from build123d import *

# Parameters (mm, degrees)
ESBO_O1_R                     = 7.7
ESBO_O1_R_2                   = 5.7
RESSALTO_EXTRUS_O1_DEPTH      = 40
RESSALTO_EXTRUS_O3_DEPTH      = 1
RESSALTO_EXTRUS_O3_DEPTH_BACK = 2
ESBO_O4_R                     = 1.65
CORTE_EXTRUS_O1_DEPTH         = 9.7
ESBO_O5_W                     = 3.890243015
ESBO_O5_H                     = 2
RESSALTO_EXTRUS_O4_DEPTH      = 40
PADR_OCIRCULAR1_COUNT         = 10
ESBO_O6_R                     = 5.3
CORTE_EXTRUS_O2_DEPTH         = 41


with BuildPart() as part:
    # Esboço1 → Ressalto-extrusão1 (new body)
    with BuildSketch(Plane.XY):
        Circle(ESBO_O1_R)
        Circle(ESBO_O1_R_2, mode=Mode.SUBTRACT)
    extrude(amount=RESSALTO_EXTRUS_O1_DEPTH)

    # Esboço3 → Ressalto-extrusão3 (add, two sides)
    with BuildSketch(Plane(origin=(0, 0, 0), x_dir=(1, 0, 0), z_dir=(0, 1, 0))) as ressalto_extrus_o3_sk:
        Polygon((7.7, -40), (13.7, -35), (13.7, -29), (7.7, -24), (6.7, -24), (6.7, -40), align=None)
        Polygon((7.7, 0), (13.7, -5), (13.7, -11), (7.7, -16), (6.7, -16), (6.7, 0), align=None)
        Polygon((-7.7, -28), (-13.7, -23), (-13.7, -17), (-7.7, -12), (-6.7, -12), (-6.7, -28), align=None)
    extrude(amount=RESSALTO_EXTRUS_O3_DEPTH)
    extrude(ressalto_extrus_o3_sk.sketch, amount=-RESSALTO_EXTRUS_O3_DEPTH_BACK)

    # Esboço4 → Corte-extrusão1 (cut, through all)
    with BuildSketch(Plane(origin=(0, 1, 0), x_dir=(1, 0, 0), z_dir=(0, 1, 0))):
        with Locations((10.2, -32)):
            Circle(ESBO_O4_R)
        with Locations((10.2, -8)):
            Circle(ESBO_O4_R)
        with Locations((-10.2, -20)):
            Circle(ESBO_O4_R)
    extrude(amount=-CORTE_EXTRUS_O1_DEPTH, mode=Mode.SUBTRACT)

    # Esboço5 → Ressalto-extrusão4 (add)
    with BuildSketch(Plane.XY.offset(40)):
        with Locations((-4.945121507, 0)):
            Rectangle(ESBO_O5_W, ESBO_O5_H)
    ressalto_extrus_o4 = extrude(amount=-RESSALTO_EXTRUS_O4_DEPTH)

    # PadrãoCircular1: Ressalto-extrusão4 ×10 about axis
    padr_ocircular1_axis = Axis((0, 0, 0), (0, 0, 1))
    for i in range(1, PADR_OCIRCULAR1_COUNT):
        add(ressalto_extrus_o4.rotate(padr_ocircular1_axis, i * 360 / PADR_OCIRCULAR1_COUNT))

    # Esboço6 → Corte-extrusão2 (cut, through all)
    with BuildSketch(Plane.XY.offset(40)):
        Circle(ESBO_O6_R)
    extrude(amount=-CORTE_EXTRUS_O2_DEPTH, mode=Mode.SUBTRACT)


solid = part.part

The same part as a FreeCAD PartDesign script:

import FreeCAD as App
import Part
import Sketcher

V = App.Vector

doc = App.newDocument("Part")
body = doc.addObject("PartDesign::Body", "Body")

# Sketch on XY plane
sketch1 = body.newObject("Sketcher::SketchObject", "Sketch")
sketch1.AttachmentSupport = (doc.getObject("XY_Plane"), [""])
sketch1.MapMode = "FlatFace"
sketch1.addGeometry([
    Part.Circle(V(0, 0, 0), V(0, 0, 1), 8),
    Part.Circle(V(0, 0, 0), V(0, 0, 1), 6),
], False)
sketch1.addConstraint([
    Sketcher.Constraint("Coincident", 0, 3, -1, 1),
    Sketcher.Constraint("Coincident", 1, 3, -1, 1),
    Sketcher.Constraint("Diameter", 0, 15.4),
    Sketcher.Constraint("Diameter", 1, 11.4),
])
pad1 = body.newObject("PartDesign::Pad", "Pad")
pad1.Profile = sketch1
pad1.Length = 40

# Sketch on XZ plane
sketch2 = body.newObject("Sketcher::SketchObject", "Sketch001")
sketch2.AttachmentSupport = (doc.getObject("XZ_Plane"), [""])
sketch2.MapMode = "FlatFace"
sketch2.addGeometry([
    Part.LineSegment(V(7.7, 40, 0), V(13.7, 35, 0)),  # 0
    Part.LineSegment(V(13.7, 35, 0), V(13.7, 29, 0)),  # 1
    Part.LineSegment(V(13.7, 29, 0), V(7.7, 24, 0)),  # 2
    Part.LineSegment(V(7.7, 24, 0), V(6.7, 24, 0)),  # 3
    Part.LineSegment(V(6.7, 24, 0), V(6.7, 40, 0)),  # 4
    Part.LineSegment(V(6.7, 40, 0), V(7.7, 40, 0)),  # 5
    Part.LineSegment(V(13.7, 5, 0), V(7.7, 0, 0)),  # 6
    Part.LineSegment(V(7.7, 0, 0), V(6.7, 0, 0)),  # 7
    Part.LineSegment(V(6.7, 0, 0), V(6.7, 16, 0)),  # 8
    Part.LineSegment(V(6.7, 16, 0), V(7.7, 16, 0)),  # 9
    Part.LineSegment(V(7.7, 16, 0), V(13.7, 11, 0)),  # 10
    Part.LineSegment(V(13.7, 11, 0), V(13.7, 5, 0)),  # 11
    Part.LineSegment(V(-13.7, 23, 0), V(-7.7, 28, 0)),  # 12
    Part.LineSegment(V(-7.7, 28, 0), V(-6.7, 28, 0)),  # 13
    Part.LineSegment(V(-6.7, 28, 0), V(-6.7, 12, 0)),  # 14
    Part.LineSegment(V(-6.7, 12, 0), V(-7.7, 12, 0)),  # 15
    Part.LineSegment(V(-7.7, 12, 0), V(-13.7, 17, 0)),  # 16
    Part.LineSegment(V(-13.7, 17, 0), V(-13.7, 23, 0)),  # 17
], False)
sketch2.addConstraint([
    Sketcher.Constraint("Coincident", 0, 2, 1, 1),
    Sketcher.Constraint("Coincident", 1, 2, 2, 1),
    Sketcher.Constraint("Coincident", 2, 2, 3, 1),
    Sketcher.Constraint("Coincident", 3, 2, 4, 1),
    Sketcher.Constraint("Coincident", 4, 2, 5, 1),
    Sketcher.Constraint("Coincident", 5, 2, 0, 1),
    Sketcher.Constraint("Coincident", 6, 2, 7, 1),
    Sketcher.Constraint("Coincident", 7, 2, 8, 1),
    Sketcher.Constraint("Coincident", 8, 2, 9, 1),
    Sketcher.Constraint("Coincident", 9, 2, 10, 1),
    Sketcher.Constraint("Coincident", 10, 2, 11, 1),
    Sketcher.Constraint("Coincident", 11, 2, 6, 1),
    Sketcher.Constraint("Coincident", 12, 2, 13, 1),
    Sketcher.Constraint("Coincident", 13, 2, 14, 1),
    Sketcher.Constraint("Coincident", 14, 2, 15, 1),
    Sketcher.Constraint("Coincident", 15, 2, 16, 1),
    Sketcher.Constraint("Coincident", 16, 2, 17, 1),
    Sketcher.Constraint("Coincident", 17, 2, 12, 1),
    Sketcher.Constraint("Vertical", 1),
    Sketcher.Constraint("Horizontal", 3),
    Sketcher.Constraint("Vertical", 4),
    Sketcher.Constraint("Horizontal", 5),
    Sketcher.Constraint("Horizontal", 7),
    Sketcher.Constraint("Vertical", 8),
    Sketcher.Constraint("Horizontal", 9),
    Sketcher.Constraint("Vertical", 11),
    Sketcher.Constraint("Horizontal", 13),
    Sketcher.Constraint("Vertical", 14),
    Sketcher.Constraint("Horizontal", 15),
    Sketcher.Constraint("Vertical", 17),
    Sketcher.Constraint("PointOnObject", 6, 2, -1),
    Sketcher.Constraint("Parallel", 2, 6),
    Sketcher.Constraint("Parallel", 0, 10),
    Sketcher.Constraint("Parallel", 6, 12),
    Sketcher.Constraint("Parallel", 10, 16),
    Sketcher.Constraint("Vertical", 2, 2, 5, 2),
    Sketcher.Constraint("Vertical", 5, 2, 6, 2),
    Sketcher.Constraint("Vertical", 4, 2, 7, 2),
    Sketcher.Constraint("Vertical", 6, 2, 9, 2),
    Sketcher.Constraint("Vertical", 1, 2, 10, 2),
    Sketcher.Constraint("Vertical", 12, 2, 15, 2),
    Sketcher.Constraint("Equal", 9, 13),
    Sketcher.Constraint("Equal", 4, 8),
    Sketcher.Constraint("Equal", 8, 14),
    Sketcher.Constraint("Equal", 11, 17),
    Sketcher.Constraint("Equal", 0, 2),
    Sketcher.Constraint("DistanceX", 3, 2, 3, 1, 1.0),
    Sketcher.Constraint("DistanceY", 1, 2, 1, 1, 6.0),
    Sketcher.Constraint("DistanceY", 4, 1, 4, 2, 16.0),
    Sketcher.Constraint("DistanceY", -1, 1, 0, 2, 35.0),
    Sketcher.Constraint("DistanceY", -1, 1, 12, 2, 28.0),
    Sketcher.Constraint("DistanceX", 2, 2, 1, 2, 6.0),
    Sketcher.Constraint("DistanceX", -1, 1, 0, 2, 13.7),
    Sketcher.Constraint("DistanceX", 12, 2, -1, 1, 7.7),
])
pad2 = body.newObject("PartDesign::Pad", "Pad001")
pad2.Profile = sketch2
pad2.Type = "TwoLengths"
pad2.Length = 1
pad2.Length2 = 2
pad2.Reversed = True

# Sketch on XZ plane
sketch3 = body.newObject("Sketcher::SketchObject", "Sketch002")
sketch3.AttachmentSupport = (doc.getObject("XZ_Plane"), [""])
sketch3.MapMode = "FlatFace"
sketch3.AttachmentOffset = App.Placement(V(0, 0, -1), App.Rotation())
sketch3.addGeometry([
    Part.Circle(V(10.2, 32, 0), V(0, 0, 1), 1.6),
    Part.Circle(V(10.2, 8, 0), V(0, 0, 1), 1.6),
    Part.Circle(V(-10.2, 20, 0), V(0, 0, 1), 1.6),
], False)
sketch3.addConstraint([
    Sketcher.Constraint("Equal", 0, 1),
    Sketcher.Constraint("Equal", 1, 2),
    Sketcher.Constraint("Vertical", 0, 3, 1, 3),
    Sketcher.Constraint("Diameter", 0, 3.3),
    Sketcher.Constraint("DistanceY", -1, 1, 0, 3, 32.0),
    Sketcher.Constraint("DistanceY", -1, 1, 1, 3, 8.0),
    Sketcher.Constraint("DistanceY", -1, 1, 2, 3, 20.0),
    Sketcher.Constraint("DistanceX", -1, 1, 0, 3, 10.2),
    Sketcher.Constraint("DistanceX", 2, 3, -1, 1, 10.2),
])
pocket1 = body.newObject("PartDesign::Pocket", "Pocket")
pocket1.Profile = sketch3
pocket1.Type = "ThroughAll"
pocket1.Reversed = True

# Sketch on XY plane
sketch4 = body.newObject("Sketcher::SketchObject", "Sketch003")
sketch4.AttachmentSupport = (doc.getObject("XY_Plane"), [""])
sketch4.MapMode = "FlatFace"
sketch4.AttachmentOffset = App.Placement(V(0, 0, 40), App.Rotation())
sketch4.addGeometry([
    Part.LineSegment(V(-6.9, 1, 0), V(-6.9, -1, 0)),
    Part.LineSegment(V(-6.9, -1, 0), V(-3, -1, 0)),
    Part.LineSegment(V(-3, -1, 0), V(-3, 1, 0)),
    Part.LineSegment(V(-3, 1, 0), V(-6.9, 1, 0)),
], False)
sketch4.addConstraint([
    Sketcher.Constraint("Coincident", 0, 2, 1, 1),
    Sketcher.Constraint("Coincident", 1, 2, 2, 1),
    Sketcher.Constraint("Coincident", 2, 2, 3, 1),
    Sketcher.Constraint("Coincident", 3, 2, 0, 1),
    Sketcher.Constraint("Vertical", 0),
    Sketcher.Constraint("Horizontal", 1),
    Sketcher.Constraint("Vertical", 2),
    Sketcher.Constraint("Horizontal", 3),
    Sketcher.Constraint("DistanceY", 0, 2, 0, 1, 2.0),
    Sketcher.Constraint("DistanceY", 0, 2, -1, 1, 1.0),
    Sketcher.Constraint("DistanceX", 1, 2, -1, 1, 3.0),
    Sketcher.Constraint("DistanceX", 1, 1, 1, 2, 3.890243),
])
pad3 = body.newObject("PartDesign::Pad", "Pad002")
pad3.Profile = sketch4
pad3.Length = 40
pad3.Reversed = True
doc.recompute()

polarpattern = body.newObject("PartDesign::PolarPattern", "PolarPattern")
polarpattern.Originals = [pad3]
polarpattern.Axis = (doc.getObject("Z_Axis"), [""])
polarpattern.Angle = 360
polarpattern.Occurrences = 10
body.Tip = polarpattern

# Sketch on XY plane
sketch5 = body.newObject("Sketcher::SketchObject", "Sketch004")
sketch5.AttachmentSupport = (doc.getObject("XY_Plane"), [""])
sketch5.MapMode = "FlatFace"
sketch5.AttachmentOffset = App.Placement(V(0, 0, 40), App.Rotation())
sketch5.addGeometry(Part.Circle(V(0, 0, 0), V(0, 0, 1), 5), False)
sketch5.addConstraint([
    Sketcher.Constraint("Coincident", 0, 3, -1, 1),
    Sketcher.Constraint("Diameter", 0, 10.6),
])
pocket2 = body.newObject("PartDesign::Pocket", "Pocket001")
pocket2.Profile = sketch5
pocket2.Type = "ThroughAll"

doc.recompute()
